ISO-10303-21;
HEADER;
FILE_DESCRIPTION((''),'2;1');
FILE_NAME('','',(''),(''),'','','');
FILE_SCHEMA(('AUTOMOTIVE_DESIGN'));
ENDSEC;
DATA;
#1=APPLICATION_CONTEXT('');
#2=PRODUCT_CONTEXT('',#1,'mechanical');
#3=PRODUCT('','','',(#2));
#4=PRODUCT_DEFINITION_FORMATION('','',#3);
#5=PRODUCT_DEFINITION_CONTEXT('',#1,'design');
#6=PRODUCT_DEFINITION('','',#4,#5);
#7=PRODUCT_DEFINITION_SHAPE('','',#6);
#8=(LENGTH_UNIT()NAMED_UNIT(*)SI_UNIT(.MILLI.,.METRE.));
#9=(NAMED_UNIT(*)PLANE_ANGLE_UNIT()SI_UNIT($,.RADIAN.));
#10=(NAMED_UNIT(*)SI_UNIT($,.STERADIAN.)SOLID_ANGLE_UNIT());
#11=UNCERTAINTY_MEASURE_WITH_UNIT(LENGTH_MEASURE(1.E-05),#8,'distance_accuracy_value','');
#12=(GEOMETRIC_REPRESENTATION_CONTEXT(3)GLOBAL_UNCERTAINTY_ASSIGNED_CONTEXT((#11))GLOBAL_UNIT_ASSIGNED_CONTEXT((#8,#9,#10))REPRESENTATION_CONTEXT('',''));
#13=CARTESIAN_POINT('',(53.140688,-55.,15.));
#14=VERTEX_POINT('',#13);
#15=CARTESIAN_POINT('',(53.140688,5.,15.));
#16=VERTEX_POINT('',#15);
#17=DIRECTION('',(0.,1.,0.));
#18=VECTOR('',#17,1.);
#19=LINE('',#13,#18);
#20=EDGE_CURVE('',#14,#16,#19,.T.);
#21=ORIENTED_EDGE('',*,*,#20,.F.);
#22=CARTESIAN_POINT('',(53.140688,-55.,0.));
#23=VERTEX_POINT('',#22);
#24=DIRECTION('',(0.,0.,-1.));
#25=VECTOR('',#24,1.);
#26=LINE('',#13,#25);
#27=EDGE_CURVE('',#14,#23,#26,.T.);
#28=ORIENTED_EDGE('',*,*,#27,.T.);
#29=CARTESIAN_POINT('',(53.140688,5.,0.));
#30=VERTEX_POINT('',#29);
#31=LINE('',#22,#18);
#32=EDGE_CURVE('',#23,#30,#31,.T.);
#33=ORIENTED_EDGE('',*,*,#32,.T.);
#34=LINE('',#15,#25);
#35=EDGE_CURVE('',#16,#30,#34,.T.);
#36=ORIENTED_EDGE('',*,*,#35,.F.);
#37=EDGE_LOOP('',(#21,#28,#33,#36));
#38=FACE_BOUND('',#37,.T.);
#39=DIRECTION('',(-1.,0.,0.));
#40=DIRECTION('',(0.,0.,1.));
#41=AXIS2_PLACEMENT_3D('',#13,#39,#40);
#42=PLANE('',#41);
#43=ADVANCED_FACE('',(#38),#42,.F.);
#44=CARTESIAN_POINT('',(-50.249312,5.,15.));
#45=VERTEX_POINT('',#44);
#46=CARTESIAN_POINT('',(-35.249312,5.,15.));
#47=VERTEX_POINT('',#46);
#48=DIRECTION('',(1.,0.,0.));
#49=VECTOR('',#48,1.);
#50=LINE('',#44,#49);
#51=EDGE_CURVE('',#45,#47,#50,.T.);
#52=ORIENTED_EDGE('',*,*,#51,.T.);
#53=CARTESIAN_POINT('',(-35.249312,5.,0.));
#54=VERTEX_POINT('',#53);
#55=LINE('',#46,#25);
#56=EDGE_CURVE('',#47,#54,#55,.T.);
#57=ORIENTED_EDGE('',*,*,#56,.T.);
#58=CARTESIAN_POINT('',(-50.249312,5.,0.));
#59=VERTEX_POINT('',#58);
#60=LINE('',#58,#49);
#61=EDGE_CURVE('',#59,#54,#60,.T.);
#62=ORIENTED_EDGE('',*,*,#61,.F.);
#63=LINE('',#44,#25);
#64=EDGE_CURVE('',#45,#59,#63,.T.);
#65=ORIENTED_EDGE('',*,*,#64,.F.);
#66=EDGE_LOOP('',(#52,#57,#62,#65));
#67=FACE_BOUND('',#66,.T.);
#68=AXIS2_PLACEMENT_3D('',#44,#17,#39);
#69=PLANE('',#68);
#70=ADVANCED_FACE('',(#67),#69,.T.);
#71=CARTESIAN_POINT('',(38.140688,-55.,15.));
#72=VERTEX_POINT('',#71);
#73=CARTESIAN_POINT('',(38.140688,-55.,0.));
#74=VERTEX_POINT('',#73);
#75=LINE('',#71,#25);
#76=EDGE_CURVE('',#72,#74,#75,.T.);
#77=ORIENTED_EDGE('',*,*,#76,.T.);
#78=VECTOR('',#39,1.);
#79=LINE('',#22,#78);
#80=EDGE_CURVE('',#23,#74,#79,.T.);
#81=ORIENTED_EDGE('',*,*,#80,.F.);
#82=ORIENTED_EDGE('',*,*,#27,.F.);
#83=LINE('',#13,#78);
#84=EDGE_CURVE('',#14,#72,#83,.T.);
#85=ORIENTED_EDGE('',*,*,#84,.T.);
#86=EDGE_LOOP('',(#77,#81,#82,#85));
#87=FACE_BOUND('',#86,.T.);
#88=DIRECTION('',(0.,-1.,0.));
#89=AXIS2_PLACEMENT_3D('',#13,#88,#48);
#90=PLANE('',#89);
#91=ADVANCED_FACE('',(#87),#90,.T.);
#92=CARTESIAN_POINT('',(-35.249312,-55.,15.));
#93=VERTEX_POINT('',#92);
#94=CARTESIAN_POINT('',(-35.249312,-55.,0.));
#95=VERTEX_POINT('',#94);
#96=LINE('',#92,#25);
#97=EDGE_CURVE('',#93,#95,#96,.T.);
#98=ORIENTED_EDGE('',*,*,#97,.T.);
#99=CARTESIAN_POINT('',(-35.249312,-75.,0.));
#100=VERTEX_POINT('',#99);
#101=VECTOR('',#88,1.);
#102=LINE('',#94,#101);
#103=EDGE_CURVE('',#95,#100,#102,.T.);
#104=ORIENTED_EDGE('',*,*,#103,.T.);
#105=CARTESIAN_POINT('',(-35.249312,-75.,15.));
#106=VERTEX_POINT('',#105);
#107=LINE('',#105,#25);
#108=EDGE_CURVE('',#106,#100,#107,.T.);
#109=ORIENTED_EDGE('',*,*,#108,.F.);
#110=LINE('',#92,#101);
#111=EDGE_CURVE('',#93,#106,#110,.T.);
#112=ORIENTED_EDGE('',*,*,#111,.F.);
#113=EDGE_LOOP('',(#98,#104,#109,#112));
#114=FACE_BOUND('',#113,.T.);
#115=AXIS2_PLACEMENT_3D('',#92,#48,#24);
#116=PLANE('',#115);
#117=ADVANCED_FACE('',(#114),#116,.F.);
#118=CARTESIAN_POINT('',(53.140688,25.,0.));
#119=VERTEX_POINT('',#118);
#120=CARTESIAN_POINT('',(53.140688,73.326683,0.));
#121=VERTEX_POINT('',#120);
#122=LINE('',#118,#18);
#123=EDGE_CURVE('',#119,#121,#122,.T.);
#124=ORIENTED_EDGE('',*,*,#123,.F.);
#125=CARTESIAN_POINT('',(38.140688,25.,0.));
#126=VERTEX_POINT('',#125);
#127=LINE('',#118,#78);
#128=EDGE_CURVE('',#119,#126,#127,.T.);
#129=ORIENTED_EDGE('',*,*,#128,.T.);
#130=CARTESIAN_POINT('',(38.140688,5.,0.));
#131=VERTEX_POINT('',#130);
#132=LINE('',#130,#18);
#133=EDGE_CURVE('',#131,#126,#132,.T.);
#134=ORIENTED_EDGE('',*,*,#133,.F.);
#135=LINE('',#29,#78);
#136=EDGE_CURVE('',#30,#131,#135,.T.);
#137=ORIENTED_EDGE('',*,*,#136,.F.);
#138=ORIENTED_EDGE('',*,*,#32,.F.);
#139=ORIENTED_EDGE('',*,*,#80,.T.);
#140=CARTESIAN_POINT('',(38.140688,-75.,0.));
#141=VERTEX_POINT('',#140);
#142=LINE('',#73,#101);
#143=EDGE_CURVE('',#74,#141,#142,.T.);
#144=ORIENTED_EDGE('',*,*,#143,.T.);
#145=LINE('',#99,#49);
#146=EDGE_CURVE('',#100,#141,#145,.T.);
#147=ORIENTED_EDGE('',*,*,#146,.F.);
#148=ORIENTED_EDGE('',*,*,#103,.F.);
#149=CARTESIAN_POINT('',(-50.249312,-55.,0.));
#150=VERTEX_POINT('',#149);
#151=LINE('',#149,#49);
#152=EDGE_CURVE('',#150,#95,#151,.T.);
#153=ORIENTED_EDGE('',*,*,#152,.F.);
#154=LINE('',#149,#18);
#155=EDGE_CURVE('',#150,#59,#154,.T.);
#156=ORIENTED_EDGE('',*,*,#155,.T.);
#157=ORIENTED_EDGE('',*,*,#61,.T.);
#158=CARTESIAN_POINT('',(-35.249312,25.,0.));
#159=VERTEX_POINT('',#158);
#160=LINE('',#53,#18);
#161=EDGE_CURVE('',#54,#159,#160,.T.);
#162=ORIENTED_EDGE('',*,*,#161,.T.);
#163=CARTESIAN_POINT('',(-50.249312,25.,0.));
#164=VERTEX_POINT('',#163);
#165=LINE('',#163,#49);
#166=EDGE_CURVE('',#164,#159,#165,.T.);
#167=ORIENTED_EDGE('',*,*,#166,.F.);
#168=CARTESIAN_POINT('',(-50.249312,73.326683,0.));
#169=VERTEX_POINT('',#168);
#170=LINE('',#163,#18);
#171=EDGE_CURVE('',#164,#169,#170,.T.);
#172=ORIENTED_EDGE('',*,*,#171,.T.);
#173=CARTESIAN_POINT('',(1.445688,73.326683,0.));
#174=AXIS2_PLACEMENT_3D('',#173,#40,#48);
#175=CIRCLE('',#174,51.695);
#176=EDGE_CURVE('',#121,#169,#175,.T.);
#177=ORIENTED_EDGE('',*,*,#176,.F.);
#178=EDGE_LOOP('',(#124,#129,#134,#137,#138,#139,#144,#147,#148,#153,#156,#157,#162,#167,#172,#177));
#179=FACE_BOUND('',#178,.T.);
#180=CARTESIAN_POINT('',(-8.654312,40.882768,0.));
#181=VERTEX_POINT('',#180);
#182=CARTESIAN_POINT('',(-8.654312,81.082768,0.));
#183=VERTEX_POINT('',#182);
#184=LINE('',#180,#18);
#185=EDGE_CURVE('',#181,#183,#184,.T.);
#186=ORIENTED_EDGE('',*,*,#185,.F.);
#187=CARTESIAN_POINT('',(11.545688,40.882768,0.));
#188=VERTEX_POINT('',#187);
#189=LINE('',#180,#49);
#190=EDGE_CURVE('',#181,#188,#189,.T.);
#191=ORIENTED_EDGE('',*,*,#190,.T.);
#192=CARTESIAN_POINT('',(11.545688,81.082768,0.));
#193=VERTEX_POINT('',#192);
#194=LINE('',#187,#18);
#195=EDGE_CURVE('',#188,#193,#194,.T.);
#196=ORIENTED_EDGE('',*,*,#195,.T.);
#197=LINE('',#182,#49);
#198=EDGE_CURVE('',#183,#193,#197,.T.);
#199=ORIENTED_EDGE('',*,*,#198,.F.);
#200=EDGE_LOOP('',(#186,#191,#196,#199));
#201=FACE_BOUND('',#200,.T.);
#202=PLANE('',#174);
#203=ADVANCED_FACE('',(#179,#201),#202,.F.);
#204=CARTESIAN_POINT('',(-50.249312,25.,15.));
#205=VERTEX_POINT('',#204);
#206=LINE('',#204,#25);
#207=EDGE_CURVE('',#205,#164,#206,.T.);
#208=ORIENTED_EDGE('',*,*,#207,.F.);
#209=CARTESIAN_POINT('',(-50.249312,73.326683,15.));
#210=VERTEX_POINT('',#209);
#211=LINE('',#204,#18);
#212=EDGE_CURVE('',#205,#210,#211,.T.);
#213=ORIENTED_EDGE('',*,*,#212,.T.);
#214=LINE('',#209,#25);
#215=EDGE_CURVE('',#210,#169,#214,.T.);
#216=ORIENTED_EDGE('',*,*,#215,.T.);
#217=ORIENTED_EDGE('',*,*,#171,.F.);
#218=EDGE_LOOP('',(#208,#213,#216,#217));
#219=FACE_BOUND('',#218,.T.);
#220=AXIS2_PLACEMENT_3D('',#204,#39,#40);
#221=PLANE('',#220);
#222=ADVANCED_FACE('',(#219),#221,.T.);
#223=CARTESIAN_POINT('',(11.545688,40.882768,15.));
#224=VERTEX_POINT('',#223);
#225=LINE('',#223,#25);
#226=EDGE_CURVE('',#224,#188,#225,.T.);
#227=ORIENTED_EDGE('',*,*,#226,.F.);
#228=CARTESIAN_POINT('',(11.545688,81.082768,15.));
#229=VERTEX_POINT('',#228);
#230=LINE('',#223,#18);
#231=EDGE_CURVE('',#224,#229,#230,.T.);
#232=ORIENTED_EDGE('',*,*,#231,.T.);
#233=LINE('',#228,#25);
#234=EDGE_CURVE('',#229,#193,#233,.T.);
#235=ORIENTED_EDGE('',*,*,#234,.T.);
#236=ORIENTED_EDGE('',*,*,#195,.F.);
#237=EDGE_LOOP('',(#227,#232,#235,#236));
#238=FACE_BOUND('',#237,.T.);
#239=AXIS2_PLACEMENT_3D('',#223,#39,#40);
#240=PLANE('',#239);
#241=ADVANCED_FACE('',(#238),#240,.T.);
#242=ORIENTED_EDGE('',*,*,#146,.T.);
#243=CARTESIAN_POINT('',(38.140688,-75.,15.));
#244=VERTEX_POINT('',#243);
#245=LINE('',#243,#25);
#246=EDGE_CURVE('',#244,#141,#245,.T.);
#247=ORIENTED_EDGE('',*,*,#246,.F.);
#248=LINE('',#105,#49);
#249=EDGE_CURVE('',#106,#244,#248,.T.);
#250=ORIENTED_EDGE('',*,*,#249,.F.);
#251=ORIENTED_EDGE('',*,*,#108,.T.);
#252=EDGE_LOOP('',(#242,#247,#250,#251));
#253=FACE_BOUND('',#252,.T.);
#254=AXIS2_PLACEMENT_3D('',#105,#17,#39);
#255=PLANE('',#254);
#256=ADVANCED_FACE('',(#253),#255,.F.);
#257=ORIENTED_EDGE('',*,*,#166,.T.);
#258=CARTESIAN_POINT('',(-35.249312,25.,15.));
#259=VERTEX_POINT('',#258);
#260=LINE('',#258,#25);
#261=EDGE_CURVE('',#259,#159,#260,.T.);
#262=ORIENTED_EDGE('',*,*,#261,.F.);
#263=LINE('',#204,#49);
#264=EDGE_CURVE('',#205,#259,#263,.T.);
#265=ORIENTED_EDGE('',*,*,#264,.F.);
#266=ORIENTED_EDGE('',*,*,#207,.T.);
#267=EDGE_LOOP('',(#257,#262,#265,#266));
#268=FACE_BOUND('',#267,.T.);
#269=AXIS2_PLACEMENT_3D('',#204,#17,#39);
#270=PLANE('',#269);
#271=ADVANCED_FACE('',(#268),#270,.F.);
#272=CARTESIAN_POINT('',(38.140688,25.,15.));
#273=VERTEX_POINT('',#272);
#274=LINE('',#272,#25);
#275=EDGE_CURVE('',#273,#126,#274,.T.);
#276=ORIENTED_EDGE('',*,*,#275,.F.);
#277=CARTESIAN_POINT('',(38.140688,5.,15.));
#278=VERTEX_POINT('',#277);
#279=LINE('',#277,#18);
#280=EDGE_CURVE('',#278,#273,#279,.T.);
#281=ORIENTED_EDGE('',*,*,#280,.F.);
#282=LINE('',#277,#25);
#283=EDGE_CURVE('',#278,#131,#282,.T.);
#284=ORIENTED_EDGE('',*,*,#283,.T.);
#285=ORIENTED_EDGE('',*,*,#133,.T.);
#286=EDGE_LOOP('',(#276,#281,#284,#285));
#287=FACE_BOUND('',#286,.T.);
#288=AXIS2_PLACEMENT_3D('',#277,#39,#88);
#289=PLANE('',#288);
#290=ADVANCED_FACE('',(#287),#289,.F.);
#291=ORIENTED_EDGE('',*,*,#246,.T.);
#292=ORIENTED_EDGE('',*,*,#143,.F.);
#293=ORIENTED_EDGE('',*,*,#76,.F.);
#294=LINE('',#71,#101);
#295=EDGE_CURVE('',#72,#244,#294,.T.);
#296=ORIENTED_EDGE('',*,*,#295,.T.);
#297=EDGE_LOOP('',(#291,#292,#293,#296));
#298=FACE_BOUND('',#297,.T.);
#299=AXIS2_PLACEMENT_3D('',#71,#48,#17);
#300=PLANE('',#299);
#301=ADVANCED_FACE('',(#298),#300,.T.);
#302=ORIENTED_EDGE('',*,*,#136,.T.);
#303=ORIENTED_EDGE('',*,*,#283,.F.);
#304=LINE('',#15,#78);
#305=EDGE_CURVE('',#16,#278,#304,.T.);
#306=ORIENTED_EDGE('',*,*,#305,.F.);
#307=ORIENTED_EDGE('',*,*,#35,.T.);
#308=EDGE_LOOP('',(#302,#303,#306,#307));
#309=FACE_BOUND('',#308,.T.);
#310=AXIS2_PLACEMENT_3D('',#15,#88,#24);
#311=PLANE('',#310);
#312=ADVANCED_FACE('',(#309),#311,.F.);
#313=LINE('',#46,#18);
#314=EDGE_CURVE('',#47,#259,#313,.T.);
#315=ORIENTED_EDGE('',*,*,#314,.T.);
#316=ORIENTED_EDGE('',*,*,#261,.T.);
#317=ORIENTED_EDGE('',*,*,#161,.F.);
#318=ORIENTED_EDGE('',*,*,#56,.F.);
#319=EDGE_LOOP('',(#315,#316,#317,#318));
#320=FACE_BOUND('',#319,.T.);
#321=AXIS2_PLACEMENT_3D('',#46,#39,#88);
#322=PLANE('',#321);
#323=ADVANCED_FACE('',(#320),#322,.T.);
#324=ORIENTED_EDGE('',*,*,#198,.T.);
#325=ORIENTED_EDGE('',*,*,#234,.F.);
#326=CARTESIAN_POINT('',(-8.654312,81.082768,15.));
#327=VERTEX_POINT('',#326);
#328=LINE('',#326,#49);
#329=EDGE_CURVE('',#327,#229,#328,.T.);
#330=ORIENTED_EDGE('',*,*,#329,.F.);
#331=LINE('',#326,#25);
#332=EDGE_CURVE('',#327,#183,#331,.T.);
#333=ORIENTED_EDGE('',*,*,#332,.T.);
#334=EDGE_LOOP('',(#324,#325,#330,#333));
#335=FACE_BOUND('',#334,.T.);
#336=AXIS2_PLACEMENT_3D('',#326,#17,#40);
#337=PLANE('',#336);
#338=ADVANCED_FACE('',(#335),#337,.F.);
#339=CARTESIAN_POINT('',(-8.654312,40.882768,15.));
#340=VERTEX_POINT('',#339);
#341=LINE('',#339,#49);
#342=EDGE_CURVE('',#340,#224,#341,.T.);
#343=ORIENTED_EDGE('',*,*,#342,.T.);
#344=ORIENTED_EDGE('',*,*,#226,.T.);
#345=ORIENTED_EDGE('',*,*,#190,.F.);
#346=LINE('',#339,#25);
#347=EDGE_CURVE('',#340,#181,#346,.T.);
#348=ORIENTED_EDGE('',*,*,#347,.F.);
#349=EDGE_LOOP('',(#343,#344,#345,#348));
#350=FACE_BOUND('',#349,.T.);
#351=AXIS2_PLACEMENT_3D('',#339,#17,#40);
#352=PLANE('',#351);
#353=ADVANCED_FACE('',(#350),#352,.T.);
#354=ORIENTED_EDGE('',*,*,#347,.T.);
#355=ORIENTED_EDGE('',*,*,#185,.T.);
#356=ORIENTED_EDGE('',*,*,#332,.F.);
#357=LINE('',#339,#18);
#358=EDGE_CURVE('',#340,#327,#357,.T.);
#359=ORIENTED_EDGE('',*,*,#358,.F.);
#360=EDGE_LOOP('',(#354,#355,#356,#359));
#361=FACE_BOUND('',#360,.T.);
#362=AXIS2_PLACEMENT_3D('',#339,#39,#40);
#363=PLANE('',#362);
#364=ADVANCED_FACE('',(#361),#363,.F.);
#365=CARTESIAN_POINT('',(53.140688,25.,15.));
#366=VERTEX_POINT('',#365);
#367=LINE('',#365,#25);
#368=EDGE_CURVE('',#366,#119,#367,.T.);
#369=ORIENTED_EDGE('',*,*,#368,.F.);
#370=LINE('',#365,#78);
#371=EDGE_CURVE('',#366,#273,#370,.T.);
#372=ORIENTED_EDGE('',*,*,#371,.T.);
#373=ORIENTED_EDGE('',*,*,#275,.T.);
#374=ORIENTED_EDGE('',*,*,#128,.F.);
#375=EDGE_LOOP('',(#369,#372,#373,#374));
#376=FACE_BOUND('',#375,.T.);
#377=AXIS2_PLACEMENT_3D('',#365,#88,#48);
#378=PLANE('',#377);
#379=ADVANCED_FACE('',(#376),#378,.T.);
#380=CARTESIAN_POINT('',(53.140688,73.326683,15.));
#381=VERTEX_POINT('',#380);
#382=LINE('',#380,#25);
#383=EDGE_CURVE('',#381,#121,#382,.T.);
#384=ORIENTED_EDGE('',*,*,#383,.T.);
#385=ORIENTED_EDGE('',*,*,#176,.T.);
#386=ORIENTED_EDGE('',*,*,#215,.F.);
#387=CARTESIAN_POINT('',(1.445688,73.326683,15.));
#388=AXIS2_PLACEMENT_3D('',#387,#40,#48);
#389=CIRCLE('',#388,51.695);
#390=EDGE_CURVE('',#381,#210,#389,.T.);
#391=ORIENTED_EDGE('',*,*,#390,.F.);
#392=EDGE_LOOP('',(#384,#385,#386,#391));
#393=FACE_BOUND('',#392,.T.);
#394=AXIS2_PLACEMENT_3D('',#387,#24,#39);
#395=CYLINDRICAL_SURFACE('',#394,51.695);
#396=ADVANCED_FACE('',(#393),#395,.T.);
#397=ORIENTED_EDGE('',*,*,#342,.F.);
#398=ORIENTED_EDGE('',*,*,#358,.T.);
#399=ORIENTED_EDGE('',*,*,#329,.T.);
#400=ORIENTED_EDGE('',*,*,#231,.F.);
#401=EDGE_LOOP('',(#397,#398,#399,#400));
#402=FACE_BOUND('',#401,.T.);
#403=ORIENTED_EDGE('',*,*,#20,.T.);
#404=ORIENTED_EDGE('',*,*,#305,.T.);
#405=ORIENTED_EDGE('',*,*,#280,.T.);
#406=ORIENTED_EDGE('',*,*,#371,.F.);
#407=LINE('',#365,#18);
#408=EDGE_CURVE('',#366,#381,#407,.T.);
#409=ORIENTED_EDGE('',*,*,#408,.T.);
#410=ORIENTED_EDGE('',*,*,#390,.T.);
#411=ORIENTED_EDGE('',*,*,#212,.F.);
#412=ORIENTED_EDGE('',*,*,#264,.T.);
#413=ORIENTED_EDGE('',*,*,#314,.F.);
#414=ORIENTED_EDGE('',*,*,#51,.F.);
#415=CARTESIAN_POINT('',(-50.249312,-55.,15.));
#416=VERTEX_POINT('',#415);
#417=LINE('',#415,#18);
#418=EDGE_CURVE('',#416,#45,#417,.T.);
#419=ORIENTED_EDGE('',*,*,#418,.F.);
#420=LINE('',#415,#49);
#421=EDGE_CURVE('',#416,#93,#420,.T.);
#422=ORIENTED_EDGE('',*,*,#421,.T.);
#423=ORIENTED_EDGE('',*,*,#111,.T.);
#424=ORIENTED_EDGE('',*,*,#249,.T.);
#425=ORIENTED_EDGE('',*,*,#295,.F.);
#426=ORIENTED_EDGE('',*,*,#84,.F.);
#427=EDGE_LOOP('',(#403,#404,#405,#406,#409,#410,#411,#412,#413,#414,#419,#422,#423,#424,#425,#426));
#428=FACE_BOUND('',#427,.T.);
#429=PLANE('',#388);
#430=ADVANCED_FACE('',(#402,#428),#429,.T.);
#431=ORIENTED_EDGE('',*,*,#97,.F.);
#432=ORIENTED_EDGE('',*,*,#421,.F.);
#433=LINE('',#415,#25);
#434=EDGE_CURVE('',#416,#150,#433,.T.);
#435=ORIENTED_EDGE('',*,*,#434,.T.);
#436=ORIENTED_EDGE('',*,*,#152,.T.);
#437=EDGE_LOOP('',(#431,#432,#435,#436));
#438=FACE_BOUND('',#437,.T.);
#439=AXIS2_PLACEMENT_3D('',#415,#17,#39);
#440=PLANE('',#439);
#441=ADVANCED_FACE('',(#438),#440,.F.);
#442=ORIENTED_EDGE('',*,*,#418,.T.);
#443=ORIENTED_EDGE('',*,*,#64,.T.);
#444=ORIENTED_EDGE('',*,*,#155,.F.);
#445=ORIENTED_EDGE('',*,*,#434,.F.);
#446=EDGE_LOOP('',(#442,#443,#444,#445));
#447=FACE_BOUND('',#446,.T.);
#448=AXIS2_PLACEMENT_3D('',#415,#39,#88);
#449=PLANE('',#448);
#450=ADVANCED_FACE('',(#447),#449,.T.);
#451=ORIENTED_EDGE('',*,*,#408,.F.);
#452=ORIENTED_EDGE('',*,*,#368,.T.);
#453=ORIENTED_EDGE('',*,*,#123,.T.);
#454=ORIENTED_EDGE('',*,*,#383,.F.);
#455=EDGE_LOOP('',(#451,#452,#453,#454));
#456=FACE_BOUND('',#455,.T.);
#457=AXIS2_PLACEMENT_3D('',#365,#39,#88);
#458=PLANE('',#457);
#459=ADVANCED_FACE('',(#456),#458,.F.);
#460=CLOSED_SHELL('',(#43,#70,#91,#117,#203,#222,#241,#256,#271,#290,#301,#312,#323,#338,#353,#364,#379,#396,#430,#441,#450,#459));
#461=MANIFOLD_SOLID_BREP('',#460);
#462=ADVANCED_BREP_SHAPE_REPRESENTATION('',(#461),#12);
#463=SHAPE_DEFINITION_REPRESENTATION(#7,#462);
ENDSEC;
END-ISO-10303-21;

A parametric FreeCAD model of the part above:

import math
import FreeCAD as App
import Part
import Sketcher

V = App.Vector
Q = App.Units.Quantity


def add_polygon(sketch, points):
    """Adds a closed chain of lines whose ends are joined by coincident constraints."""
    first, n = sketch.GeometryCount, len(points)
    for a, b in zip(points, points[1:] + points[:1]):
        sketch.addGeometry(Part.LineSegment(App.Vector(*a, 0), App.Vector(*b, 0)), False)
    for i in range(n):
        sketch.addConstraint(Sketcher.Constraint("Coincident", first + i, 2, first + (i + 1) % n, 1))

doc = App.newDocument("Part")
body = doc.addObject("PartDesign::Body", "Body")

sketch1 = body.newObject("Sketcher::SketchObject", "Sketch")
sketch1.AttachmentSupport = (doc.getObject("XY_Plane"), [""])
sketch1.MapMode = "FlatFace"
sketch1.addGeometry(Part.LineSegment(V(-35, -55, 0), V(-35, -75, 0)), False)
sketch1.addGeometry(Part.LineSegment(V(-35, -75, 0), V(38, -75, 0)), False)
sketch1.addGeometry(Part.LineSegment(V(38, -75, 0), V(38, -55, 0)), False)
sketch1.addGeometry(Part.LineSegment(V(38, -55, 0), V(53, -55, 0)), False)
sketch1.addGeometry(Part.LineSegment(V(53, -55, 0), V(53, 5, 0)), False)
sketch1.addGeometry(Part.LineSegment(V(53, 5, 0), V(38, 5, 0)), False)
sketch1.addGeometry(Part.LineSegment(V(38, 5, 0), V(38, 25, 0)), False)
sketch1.addGeometry(Part.LineSegment(V(38, 25, 0), V(53, 25, 0)), False)
sketch1.addGeometry(Part.LineSegment(V(53, 25, 0), V(53, 73, 0)), False)
sketch1.addGeometry(Part.ArcOfCircle(Part.Circle(V(1, 73, 0), V(0, 0, 1), 52), math.radians(0), math.radians(180)), False)
sketch1.addGeometry(Part.LineSegment(V(-50, 73, 0), V(-50, 25, 0)), False)
sketch1.addGeometry(Part.LineSegment(V(-50, 25, 0), V(-35, 25, 0)), False)
sketch1.addGeometry(Part.LineSegment(V(-35, 25, 0), V(-35, 5, 0)), False)
sketch1.addGeometry(Part.LineSegment(V(-35, 5, 0), V(-50, 5, 0)), False)
sketch1.addGeometry(Part.LineSegment(V(-50, 5, 0), V(-50, -55, 0)), False)
sketch1.addGeometry(Part.LineSegment(V(-50, -55, 0), V(-35, -55, 0)), False)
add_polygon(sketch1, [(12, 41), (-9, 41), (-9, 81), (12, 81)])
sketch1.addConstraint(Sketcher.Constraint("Coincident", 0, 2, 1, 1))
sketch1.addConstraint(Sketcher.Constraint("Coincident", 1, 2, 2, 1))
sketch1.addConstraint(Sketcher.Constraint("Coincident", 2, 2, 3, 1))
sketch1.addConstraint(Sketcher.Constraint("Coincident", 3, 2, 4, 1))
sketch1.addConstraint(Sketcher.Constraint("Coincident", 4, 2, 5, 1))
sketch1.addConstraint(Sketcher.Constraint("Coincident", 5, 2, 6, 1))
sketch1.addConstraint(Sketcher.Constraint("Coincident", 6, 2, 7, 1))
sketch1.addConstraint(Sketcher.Constraint("Coincident", 7, 2, 8, 1))
sketch1.addConstraint(Sketcher.Constraint("Tangent", 8, 2, 9, 1))
sketch1.addConstraint(Sketcher.Constraint("Tangent", 9, 2, 10, 1))
sketch1.addConstraint(Sketcher.Constraint("Coincident", 10, 2, 11, 1))
sketch1.addConstraint(Sketcher.Constraint("Coincident", 11, 2, 12, 1))
sketch1.addConstraint(Sketcher.Constraint("Coincident", 12, 2, 13, 1))
sketch1.addConstraint(Sketcher.Constraint("Coincident", 13, 2, 14, 1))
sketch1.addConstraint(Sketcher.Constraint("Coincident", 14, 2, 15, 1))
sketch1.addConstraint(Sketcher.Constraint("Coincident", 15, 2, 0, 1))
sketch1.addConstraint(Sketcher.Constraint("Vertical", 0))
sketch1.addConstraint(Sketcher.Constraint("Horizontal", 1))
sketch1.addConstraint(Sketcher.Constraint("Vertical", 2))
sketch1.addConstraint(Sketcher.Constraint("Horizontal", 3))
sketch1.addConstraint(Sketcher.Constraint("Vertical", 4))
sketch1.addConstraint(Sketcher.Constraint("Horizontal", 5))
sketch1.addConstraint(Sketcher.Constraint("Vertical", 6))
sketch1.addConstraint(Sketcher.Constraint("Horizontal", 7))
sketch1.addConstraint(Sketcher.Constraint("Vertical", 8))
sketch1.addConstraint(Sketcher.Constraint("Vertical", 10))
sketch1.addConstraint(Sketcher.Constraint("Horizontal", 11))
sketch1.addConstraint(Sketcher.Constraint("Vertical", 12))
sketch1.addConstraint(Sketcher.Constraint("Horizontal", 13))
sketch1.addConstraint(Sketcher.Constraint("Vertical", 14))
sketch1.addConstraint(Sketcher.Constraint("Horizontal", 15))
sketch1.addConstraint(Sketcher.Constraint("Horizontal", 16))
sketch1.addConstraint(Sketcher.Constraint("Vertical", 17))
sketch1.addConstraint(Sketcher.Constraint("Horizontal", 18))
sketch1.addConstraint(Sketcher.Constraint("Vertical", 19))
sketch1.addConstraint(Sketcher.Constraint("Horizontal", 7, 2, 10, 2))
sketch1.addConstraint(Sketcher.Constraint("Horizontal", 5, 2, 12, 2))
sketch1.addConstraint(Sketcher.Constraint("Horizontal", 3, 2, 14, 2))
sketch1.addConstraint(Sketcher.Constraint("Vertical", 2, 2, 5, 2))
sketch1.addConstraint(Sketcher.Constraint("Vertical", 4, 2, 7, 2))
sketch1.addConstraint(Sketcher.Constraint("Vertical", 0, 2, 11, 2))
sketch1.addConstraint(Sketcher.Constraint("Vertical", 10, 2, 13, 2))
sketch1.addConstraint(Sketcher.Constraint("Equal", 7, 11))
sketch1.addConstraint(Sketcher.Constraint("Equal", 2, 6))
sketch1.addConstraint(Sketcher.Constraint("DistanceX", 3, 1, 3, 2, Q("15 mm")))
sketch1.addConstraint(Sketcher.Constraint("DistanceY", 0, 2, 0, 1, Q("20 mm")))
sketch1.addConstraint(Sketcher.Constraint("DistanceY", 4, 1, 4, 2, Q("60 mm")))
sketch1.addConstraint(Sketcher.Constraint("DistanceX", 16, 2, 16, 1, Q("20.2 mm")))
sketch1.addConstraint(Sketcher.Constraint("DistanceY", 17, 1, 17, 2, Q("40.2 mm")))
sketch1.addConstraint(Sketcher.Constraint("DistanceY", 0, 2, -1, 1, Q("75 mm")))
sketch1.addConstraint(Sketcher.Constraint("Radius", 9, Q("51.695 mm")))
sketch1.addConstraint(Sketcher.Constraint("DistanceX", 16, 2, 9, 3, Q("10.1 mm")))
sketch1.addConstraint(Sketcher.Constraint("DistanceY", 8, 1, 8, 2, Q("48.326683 mm")))
sketch1.addConstraint(Sketcher.Constraint("DistanceX", -1, 1, 9, 3, Q("1.445688 mm")))
sketch1.addConstraint(Sketcher.Constraint("DistanceY", -1, 1, 16, 2, Q("40.882768 mm")))
pad1 = body.newObject("PartDesign::Pad", "Pad")
pad1.Profile = sketch1
pad1.Length = 15

doc.recompute()
